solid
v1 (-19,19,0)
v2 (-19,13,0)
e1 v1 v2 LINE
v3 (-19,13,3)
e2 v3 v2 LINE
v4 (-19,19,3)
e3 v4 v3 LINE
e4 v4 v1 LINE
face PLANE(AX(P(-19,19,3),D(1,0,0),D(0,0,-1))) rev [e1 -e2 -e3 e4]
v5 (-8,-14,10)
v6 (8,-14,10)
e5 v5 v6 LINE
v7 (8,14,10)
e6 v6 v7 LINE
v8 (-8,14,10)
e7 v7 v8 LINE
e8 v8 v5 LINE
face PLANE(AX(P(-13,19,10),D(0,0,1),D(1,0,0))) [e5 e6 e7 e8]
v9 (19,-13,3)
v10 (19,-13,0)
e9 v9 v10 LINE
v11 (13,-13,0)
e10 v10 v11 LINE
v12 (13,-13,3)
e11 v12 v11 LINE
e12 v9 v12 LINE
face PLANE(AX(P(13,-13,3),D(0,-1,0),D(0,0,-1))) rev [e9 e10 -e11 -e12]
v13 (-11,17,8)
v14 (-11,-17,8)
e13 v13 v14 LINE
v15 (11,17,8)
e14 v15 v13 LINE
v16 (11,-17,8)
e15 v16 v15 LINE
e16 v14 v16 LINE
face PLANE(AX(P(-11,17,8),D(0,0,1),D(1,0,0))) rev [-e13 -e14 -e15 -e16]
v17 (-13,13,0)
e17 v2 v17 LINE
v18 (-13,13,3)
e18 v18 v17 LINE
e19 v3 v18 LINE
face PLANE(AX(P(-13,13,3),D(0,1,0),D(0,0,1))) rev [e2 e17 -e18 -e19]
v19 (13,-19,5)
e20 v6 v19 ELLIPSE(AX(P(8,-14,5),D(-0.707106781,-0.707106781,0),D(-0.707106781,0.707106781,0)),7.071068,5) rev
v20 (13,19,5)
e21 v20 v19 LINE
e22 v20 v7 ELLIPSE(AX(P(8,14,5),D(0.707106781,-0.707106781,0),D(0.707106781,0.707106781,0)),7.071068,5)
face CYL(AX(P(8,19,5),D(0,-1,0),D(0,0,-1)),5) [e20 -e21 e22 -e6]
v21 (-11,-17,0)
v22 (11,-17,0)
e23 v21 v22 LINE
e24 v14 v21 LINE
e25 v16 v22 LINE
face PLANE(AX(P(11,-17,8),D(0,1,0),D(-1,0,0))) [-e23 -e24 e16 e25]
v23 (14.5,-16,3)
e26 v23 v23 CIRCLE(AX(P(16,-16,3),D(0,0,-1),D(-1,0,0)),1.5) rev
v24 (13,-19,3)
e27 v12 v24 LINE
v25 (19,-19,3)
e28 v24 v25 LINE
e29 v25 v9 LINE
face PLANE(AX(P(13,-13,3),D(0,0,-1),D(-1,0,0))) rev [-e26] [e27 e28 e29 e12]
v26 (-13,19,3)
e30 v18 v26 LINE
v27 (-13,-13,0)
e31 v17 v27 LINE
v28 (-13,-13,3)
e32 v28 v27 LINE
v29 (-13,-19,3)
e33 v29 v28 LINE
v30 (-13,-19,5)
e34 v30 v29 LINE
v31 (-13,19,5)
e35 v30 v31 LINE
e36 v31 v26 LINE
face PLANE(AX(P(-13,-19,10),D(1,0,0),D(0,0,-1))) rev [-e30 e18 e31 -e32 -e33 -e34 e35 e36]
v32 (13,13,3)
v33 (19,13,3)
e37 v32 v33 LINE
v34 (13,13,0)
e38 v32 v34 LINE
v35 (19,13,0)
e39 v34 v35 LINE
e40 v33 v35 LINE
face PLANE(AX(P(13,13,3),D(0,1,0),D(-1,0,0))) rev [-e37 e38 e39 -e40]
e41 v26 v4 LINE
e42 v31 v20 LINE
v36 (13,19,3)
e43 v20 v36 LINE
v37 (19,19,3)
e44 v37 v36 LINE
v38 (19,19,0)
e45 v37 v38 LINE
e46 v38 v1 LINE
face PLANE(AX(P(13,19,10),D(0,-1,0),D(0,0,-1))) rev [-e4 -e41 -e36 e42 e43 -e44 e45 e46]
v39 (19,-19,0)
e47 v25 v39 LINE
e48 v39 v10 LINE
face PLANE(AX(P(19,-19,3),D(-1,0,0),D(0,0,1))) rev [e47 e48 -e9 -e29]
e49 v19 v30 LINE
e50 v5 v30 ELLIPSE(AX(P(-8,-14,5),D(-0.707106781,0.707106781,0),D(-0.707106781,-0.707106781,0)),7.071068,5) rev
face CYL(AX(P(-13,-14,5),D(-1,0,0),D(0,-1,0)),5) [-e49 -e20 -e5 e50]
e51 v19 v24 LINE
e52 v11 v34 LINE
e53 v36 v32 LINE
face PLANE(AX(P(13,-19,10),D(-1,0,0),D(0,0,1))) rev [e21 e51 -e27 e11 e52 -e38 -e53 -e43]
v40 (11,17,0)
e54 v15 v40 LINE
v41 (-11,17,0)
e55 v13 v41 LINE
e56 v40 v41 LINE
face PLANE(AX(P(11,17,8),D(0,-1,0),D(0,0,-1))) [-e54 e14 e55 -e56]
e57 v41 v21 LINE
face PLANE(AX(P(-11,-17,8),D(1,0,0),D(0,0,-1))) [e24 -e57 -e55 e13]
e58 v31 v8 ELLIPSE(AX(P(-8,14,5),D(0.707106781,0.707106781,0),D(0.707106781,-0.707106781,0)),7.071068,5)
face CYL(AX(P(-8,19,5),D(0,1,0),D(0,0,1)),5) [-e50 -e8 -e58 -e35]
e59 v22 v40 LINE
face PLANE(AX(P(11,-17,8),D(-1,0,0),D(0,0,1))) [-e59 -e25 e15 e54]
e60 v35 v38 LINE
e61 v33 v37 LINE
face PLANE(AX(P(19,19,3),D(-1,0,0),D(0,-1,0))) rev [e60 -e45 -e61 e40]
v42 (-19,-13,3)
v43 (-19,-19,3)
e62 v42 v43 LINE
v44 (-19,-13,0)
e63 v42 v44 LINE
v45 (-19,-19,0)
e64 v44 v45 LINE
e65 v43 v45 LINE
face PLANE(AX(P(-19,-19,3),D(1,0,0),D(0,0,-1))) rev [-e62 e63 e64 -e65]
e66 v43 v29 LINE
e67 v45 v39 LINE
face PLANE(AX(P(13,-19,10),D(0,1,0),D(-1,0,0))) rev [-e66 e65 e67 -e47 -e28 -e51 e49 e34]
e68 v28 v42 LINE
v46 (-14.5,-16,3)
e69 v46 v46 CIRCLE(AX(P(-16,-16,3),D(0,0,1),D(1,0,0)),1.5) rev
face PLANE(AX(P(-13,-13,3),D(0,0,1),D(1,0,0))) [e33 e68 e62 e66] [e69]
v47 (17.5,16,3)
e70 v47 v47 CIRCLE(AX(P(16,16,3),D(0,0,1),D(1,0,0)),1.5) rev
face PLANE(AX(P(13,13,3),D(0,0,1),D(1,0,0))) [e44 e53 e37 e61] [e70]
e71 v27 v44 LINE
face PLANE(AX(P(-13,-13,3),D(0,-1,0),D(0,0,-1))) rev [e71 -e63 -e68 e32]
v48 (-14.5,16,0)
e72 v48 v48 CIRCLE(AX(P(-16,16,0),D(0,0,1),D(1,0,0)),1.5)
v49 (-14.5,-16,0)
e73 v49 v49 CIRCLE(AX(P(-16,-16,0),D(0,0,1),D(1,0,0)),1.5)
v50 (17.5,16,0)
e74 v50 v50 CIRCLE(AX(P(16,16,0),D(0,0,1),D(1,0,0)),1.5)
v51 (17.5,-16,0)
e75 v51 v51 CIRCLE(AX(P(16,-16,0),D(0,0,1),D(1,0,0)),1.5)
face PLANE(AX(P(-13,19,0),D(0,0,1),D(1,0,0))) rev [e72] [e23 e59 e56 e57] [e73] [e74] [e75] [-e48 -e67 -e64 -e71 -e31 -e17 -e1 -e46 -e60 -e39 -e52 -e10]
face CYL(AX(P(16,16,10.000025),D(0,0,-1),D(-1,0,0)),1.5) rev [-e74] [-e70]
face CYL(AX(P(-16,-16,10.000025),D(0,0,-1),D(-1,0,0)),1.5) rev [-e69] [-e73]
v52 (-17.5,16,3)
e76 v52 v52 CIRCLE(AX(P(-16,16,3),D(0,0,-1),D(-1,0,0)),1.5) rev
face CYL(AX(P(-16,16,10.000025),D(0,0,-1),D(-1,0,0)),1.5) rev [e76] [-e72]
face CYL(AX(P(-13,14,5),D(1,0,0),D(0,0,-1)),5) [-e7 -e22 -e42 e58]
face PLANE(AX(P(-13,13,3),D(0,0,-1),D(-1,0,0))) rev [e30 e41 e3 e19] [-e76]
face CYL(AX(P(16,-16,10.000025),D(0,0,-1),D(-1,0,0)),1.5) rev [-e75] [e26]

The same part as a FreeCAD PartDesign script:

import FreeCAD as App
import Part
import Sketcher
from FreeCAD import Vector
Q = App.Units.Quantity


def edges_at(feature, points):
    """Names of the edges that pass closest to the given points."""
    edges = feature.Shape.Edges
    near = lambda p: min(range(len(edges)), key=lambda i: edges[i].distToShape(Part.Vertex(*p))[0])
    return sorted({f"Edge{near(p) + 1}" for p in points})


def add_polygon(sketch, points):
    """Adds a closed chain of lines whose ends are joined by coincident constraints."""
    first, n = sketch.GeometryCount, len(points)
    for a, b in zip(points, points[1:] + points[:1]):
        sketch.addGeometry(Part.LineSegment(App.Vector(*a, 0), App.Vector(*b, 0)), False)
    for i in range(n):
        sketch.addConstraint(Sketcher.Constraint("Coincident", first + i, 2, first + (i + 1) % n, 1))

doc = App.newDocument("Part")
body = doc.addObject("PartDesign::Body", "Body")

# Sketch on XY plane
sketch1 = doc.addObject("Sketcher::SketchObject", "Sketch")
body.addObject(sketch1)
sketch1.AttachmentSupport = (doc.XY_Plane, [""])
sketch1.MapMode = "FlatFace"
add_polygon(sketch1, [(-13, 19), (-13, -19), (13, -19), (13, 19)])  # lines 0-3
sketch1.addConstraint(Sketcher.Constraint("Vertical", 0))
sketch1.addConstraint(Sketcher.Constraint("Horizontal", 1))
sketch1.addConstraint(Sketcher.Constraint("Vertical", 2))
sketch1.addConstraint(Sketcher.Constraint("Horizontal", 3))
sketch1.addConstraint(Sketcher.Constraint("Symmetric", 0, 2, 2, 2, -1, 1))
sketch1.addConstraint(Sketcher.Constraint("DistanceX", 1, 1, 1, 2, Q("26 mm")))
sketch1.addConstraint(Sketcher.Constraint("DistanceY", 0, 2, 0, 1, Q("38 mm")))
pad1 = doc.addObject("PartDesign::Pad", "Pad")
body.addObject(pad1)
pad1.Profile = sketch1
pad1.Length = 10

# Sketch on XY plane
sketch2 = doc.addObject("Sketcher::SketchObject", "Sketch001")
body.addObject(sketch2)
sketch2.AttachmentSupport = (doc.XY_Plane, [""])
sketch2.MapMode = "FlatFace"
add_polygon(sketch2, [(-11, 17), (-11, -17), (11, -17), (11, 17)])  # lines 0-3
sketch2.addConstraint(Sketcher.Constraint("Vertical", 0))
sketch2.addConstraint(Sketcher.Constraint("Horizontal", 1))
sketch2.addConstraint(Sketcher.Constraint("Vertical", 2))
sketch2.addConstraint(Sketcher.Constraint("Horizontal", 3))
sketch2.addConstraint(Sketcher.Constraint("Symmetric", 0, 2, 2, 2, -1, 1))
sketch2.addConstraint(Sketcher.Constraint("DistanceX", 1, 1, 1, 2, Q("22 mm")))
sketch2.addConstraint(Sketcher.Constraint("DistanceY", 0, 2, 0, 1, Q("34 mm")))
pocket1 = doc.addObject("PartDesign::Pocket", "Pocket")
body.addObject(pocket1)
pocket1.Profile = sketch2
pocket1.Length = 8
pocket1.Reversed = True

# Sketch on XY plane
sketch3 = doc.addObject("Sketcher::SketchObject", "Sketch002")
body.addObject(sketch3)
sketch3.AttachmentSupport = (doc.XY_Plane, [""])
sketch3.MapMode = "FlatFace"
add_polygon(sketch3, [(13, 19), (13, 13), (19, 13), (19, 19)])  # lines 0-3
add_polygon(sketch3, [(13, -13), (13, -19), (19, -19), (19, -13)])  # lines 4-7
add_polygon(sketch3, [(-19, -13), (-19, -19), (-13, -19), (-13, -13)])  # lines 8-11
add_polygon(sketch3, [(-19, 19), (-19, 13), (-13, 13), (-13, 19)])  # lines 12-15
sketch3.addConstraint(Sketcher.Constraint("Vertical", 0))
sketch3.addConstraint(Sketcher.Constraint("Horizontal", 1))
sketch3.addConstraint(Sketcher.Constraint("Vertical", 2))
sketch3.addConstraint(Sketcher.Constraint("Horizontal", 3))
sketch3.addConstraint(Sketcher.Constraint("Vertical", 4))
sketch3.addConstraint(Sketcher.Constraint("Horizontal", 5))
sketch3.addConstraint(Sketcher.Constraint("Vertical", 6))
sketch3.addConstraint(Sketcher.Constraint("Horizontal", 7))
sketch3.addConstraint(Sketcher.Constraint("Vertical", 8))
sketch3.addConstraint(Sketcher.Constraint("Horizontal", 9))
sketch3.addConstraint(Sketcher.Constraint("Vertical", 10))
sketch3.addConstraint(Sketcher.Constraint("Horizontal", 11))
sketch3.addConstraint(Sketcher.Constraint("Vertical", 12))
sketch3.addConstraint(Sketcher.Constraint("Horizontal", 13))
sketch3.addConstraint(Sketcher.Constraint("Vertical", 14))
sketch3.addConstraint(Sketcher.Constraint("Horizontal", 15))
sketch3.addConstraint(Sketcher.Constraint("Symmetric", 2, 2, 8, 2, -1, 1))
sketch3.addConstraint(Sketcher.Constraint("Symmetric", 0, 2, 10, 2, -1, 1))
sketch3.addConstraint(Sketcher.Constraint("Symmetric", 6, 2, 12, 2, -1, 1))
sketch3.addConstraint(Sketcher.Constraint("Symmetric", 4, 2, 14, 2, -1, 1))
sketch3.addConstraint(Sketcher.Constraint("Symmetric", 5, 2, 8, 2, -2))
sketch3.addConstraint(Sketcher.Constraint("Symmetric", 7, 2, 10, 2, -2))
sketch3.addConstraint(Sketcher.Constraint("Equal", 15, 0))
sketch3.addConstraint(Sketcher.Constraint("DistanceX", 1, 1, 1, 2, Q("6 mm")))
sketch3.addConstraint(Sketcher.Constraint("DistanceX", -1, 1, 0, 2, Q("13 mm")))
sketch3.addConstraint(Sketcher.Constraint("DistanceY", -1, 1, 0, 2, Q("13 mm")))
pad2 = doc.addObject("PartDesign::Pad", "Pad001")
body.addObject(pad2)
pad2.Profile = sketch3
pad2.Length = 3

# Sketch on XY plane
sketch4 = doc.addObject("Sketcher::SketchObject", "Sketch003")
body.addObject(sketch4)
sketch4.AttachmentSupport = (doc.XY_Plane, [""])
sketch4.MapMode = "FlatFace"
sketch4.addGeometry(Part.Circle(Vector(-16, 16, 0), Vector(0, 0, 1), 1.5), False)
sketch4.addGeometry(Part.Circle(Vector(-16, -16, 0), Vector(0, 0, 1), 1.5), False)
sketch4.addGeometry(Part.Circle(Vector(16, -16, 0), Vector(0, 0, 1), 1.5), False)
sketch4.addGeometry(Part.Circle(Vector(16, 16, 0), Vector(0, 0, 1), 1.5), False)
sketch4.addConstraint(Sketcher.Constraint("Equal", 0, 1))
sketch4.addConstraint(Sketcher.Constraint("Equal", 1, 2))
sketch4.addConstraint(Sketcher.Constraint("Equal", 2, 3))
sketch4.addConstraint(Sketcher.Constraint("Symmetric", 0, 3, 2, 3, -1, 1))
sketch4.addConstraint(Sketcher.Constraint("Symmetric", 1, 3, 3, 3, -1, 1))
sketch4.addConstraint(Sketcher.Constraint("Symmetric", 1, 3, 2, 3, -2))
sketch4.addConstraint(Sketcher.Constraint("Diameter", 0, Q("3 mm")))
sketch4.addConstraint(Sketcher.Constraint("DistanceX", 0, 3, -1, 1, Q("16 mm")))
sketch4.addConstraint(Sketcher.Constraint("DistanceY", -1, 1, 0, 3, Q("16 mm")))
pocket2 = doc.addObject("PartDesign::Pocket", "Pocket001")
body.addObject(pocket2)
pocket2.Profile = sketch4
pocket2.Type = "ThroughAll"
pocket2.Reversed = True
doc.recompute()

fillet = doc.addObject("PartDesign::Fillet", "Fillet")
body.addObject(fillet)
fillet.Base = (pocket2, edges_at(pocket2, [
    (0, 19, 10),
    (0, -19, 10),
    (13, 0, 10),
    (-13, 0, 10),
]))
fillet.Radius = 5

doc.recompute()
